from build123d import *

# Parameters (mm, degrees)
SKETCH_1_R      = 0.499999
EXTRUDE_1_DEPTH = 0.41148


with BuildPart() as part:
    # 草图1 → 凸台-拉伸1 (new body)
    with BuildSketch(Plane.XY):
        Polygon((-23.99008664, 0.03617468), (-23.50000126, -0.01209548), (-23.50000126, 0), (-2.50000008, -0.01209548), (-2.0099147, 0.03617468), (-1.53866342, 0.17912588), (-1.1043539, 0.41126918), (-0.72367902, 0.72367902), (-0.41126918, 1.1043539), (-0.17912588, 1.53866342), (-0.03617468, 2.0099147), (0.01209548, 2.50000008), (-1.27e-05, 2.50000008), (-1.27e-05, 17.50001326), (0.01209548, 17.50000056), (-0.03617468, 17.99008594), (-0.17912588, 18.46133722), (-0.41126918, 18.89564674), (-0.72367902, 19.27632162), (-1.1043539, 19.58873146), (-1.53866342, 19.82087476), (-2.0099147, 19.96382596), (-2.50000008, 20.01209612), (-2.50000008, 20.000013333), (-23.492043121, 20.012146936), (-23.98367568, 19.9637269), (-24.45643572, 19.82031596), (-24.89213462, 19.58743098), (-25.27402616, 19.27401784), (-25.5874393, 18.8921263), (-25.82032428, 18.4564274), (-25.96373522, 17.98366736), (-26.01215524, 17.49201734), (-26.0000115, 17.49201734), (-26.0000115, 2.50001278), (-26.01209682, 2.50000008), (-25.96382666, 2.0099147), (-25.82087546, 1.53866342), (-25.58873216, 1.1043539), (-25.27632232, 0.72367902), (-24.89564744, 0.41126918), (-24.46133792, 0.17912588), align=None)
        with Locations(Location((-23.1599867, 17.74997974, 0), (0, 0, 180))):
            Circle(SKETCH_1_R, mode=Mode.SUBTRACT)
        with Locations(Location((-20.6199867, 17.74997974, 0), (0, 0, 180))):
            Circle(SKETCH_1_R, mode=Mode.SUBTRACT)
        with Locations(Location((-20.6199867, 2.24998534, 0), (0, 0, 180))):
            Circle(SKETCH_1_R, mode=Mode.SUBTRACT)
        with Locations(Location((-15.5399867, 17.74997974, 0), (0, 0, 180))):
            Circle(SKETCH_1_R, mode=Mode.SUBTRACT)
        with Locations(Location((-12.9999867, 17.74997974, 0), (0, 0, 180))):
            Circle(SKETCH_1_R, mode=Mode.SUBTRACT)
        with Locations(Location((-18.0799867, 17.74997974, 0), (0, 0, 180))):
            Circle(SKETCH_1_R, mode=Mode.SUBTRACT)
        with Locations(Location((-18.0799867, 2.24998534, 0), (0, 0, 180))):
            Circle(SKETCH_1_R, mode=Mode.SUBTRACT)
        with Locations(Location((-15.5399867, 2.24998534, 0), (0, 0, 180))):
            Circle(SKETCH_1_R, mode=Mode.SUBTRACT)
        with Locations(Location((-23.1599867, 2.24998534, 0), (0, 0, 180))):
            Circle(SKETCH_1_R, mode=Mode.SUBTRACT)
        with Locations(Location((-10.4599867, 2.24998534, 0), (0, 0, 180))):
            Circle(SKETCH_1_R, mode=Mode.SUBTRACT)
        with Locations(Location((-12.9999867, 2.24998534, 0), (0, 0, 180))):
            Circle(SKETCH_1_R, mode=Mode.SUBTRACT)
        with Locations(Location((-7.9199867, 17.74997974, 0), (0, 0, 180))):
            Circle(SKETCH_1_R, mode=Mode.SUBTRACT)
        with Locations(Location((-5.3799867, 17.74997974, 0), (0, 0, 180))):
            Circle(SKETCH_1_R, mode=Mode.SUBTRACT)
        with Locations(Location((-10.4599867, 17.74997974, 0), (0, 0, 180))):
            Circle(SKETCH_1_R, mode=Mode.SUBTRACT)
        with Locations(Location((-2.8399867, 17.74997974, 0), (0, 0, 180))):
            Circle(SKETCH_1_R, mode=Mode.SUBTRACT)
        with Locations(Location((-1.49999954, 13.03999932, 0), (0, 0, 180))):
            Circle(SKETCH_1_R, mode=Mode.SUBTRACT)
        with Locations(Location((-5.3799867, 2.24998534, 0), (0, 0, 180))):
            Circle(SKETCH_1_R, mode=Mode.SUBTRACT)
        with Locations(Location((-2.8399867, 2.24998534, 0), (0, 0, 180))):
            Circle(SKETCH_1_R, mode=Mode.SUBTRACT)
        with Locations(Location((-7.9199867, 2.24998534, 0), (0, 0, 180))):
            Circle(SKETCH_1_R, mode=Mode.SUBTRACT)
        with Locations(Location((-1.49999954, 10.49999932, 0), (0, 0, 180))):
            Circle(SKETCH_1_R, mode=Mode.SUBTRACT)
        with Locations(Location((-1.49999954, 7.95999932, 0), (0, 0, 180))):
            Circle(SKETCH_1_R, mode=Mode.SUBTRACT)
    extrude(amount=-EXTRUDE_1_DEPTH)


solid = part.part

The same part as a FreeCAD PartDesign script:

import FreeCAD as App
import Part
import Sketcher
from FreeCAD import Vector


def add_polygon(sketch, points):
    """Adds a closed chain of lines whose ends are joined by coincident constraints."""
    first, n = sketch.GeometryCount, len(points)
    for a, b in zip(points, points[1:] + points[:1]):
        sketch.addGeometry(Part.LineSegment(App.Vector(*a, 0), App.Vector(*b, 0)), False)
    for i in range(n):
        sketch.addConstraint(Sketcher.Constraint("Coincident", first + i, 2, first + (i + 1) % n, 1))

doc = App.newDocument("Part")
body = doc.addObject("PartDesign::Body", "Body")

sketch1 = body.newObject("Sketcher::SketchObject", "Sketch")
sketch1.AttachmentSupport = (doc.getObject("XY_Plane"), [""])
sketch1.MapMode = "FlatFace"
add_polygon(sketch1, [(-23.990087, 0.036175), (-23.500001, -0.012095), (-23.500001, 0), (-2.5, -0.012095), (-2.009915, 0.036175), (-1.538663, 0.179126), (-1.104354, 0.411269), (-0.723679, 0.723679), (-0.411269, 1.104354), (-0.179126, 1.538663), (-0.036175, 2.009915), (0.012095, 2.5), (-0.000013, 2.5), (-0.000013, 17.500013), (0.012095, 17.500001), (-0.036175, 17.990086), (-0.179126, 18.461337), (-0.411269, 18.895647), (-0.723679, 19.276322), (-1.104354, 19.588731), (-1.538663, 19.820875), (-2.009915, 19.963826), (-2.5, 20.012096), (-2.5, 20.000013), (-23.492043, 20.012147), (-23.983676, 19.963727), (-24.456436, 19.820316), (-24.892135, 19.587431), (-25.274026, 19.274018), (-25.587439, 18.892126), (-25.820324, 18.456427), (-25.963735, 17.983667), (-26.012155, 17.492017), (-26.000011, 17.492017), (-26.000011, 2.500013), (-26.012097, 2.5), (-25.963827, 2.009915), (-25.820875, 1.538663), (-25.588732, 1.104354), (-25.276322, 0.723679), (-24.895647, 0.411269), (-24.461338, 0.179126)])
sketch1.addGeometry(Part.Circle(Vector(-23.159987, 2.249985, 0), Vector(0, 0, 1), 0.499999), False)
sketch1.addGeometry(Part.Circle(Vector(-20.619987, 2.249985, 0), Vector(0, 0, 1), 0.499999), False)
sketch1.addGeometry(Part.Circle(Vector(-18.079987, 2.249985, 0), Vector(0, 0, 1), 0.499999), False)
sketch1.addGeometry(Part.Circle(Vector(-15.539987, 2.249985, 0), Vector(0, 0, 1), 0.499999), False)
sketch1.addGeometry(Part.Circle(Vector(-12.999987, 2.249985, 0), Vector(0, 0, 1), 0.499999), False)
sketch1.addGeometry(Part.Circle(Vector(-10.459987, 2.249985, 0), Vector(0, 0, 1), 0.499999), False)
sketch1.addGeometry(Part.Circle(Vector(-7.919987, 2.249985, 0), Vector(0, 0, 1), 0.499999), False)
sketch1.addGeometry(Part.Circle(Vector(-5.379987, 2.249985, 0), Vector(0, 0, 1), 0.499999), False)
sketch1.addGeometry(Part.Circle(Vector(-2.839987, 2.249985, 0), Vector(0, 0, 1), 0.499999), False)
sketch1.addGeometry(Part.Circle(Vector(-1.5, 7.959999, 0), Vector(0, 0, 1), 0.499999), False)
sketch1.addGeometry(Part.Circle(Vector(-23.159987, 17.74998, 0), Vector(0, 0, 1), 0.499999), False)
sketch1.addGeometry(Part.Circle(Vector(-20.619987, 17.74998, 0), Vector(0, 0, 1), 0.499999), False)
sketch1.addGeometry(Part.Circle(Vector(-18.079987, 17.74998, 0), Vector(0, 0, 1), 0.499999), False)
sketch1.addGeometry(Part.Circle(Vector(-15.539987, 17.74998, 0), Vector(0, 0, 1), 0.499999), False)
sketch1.addGeometry(Part.Circle(Vector(-12.999987, 17.74998, 0), Vector(0, 0, 1), 0.499999), False)
sketch1.addGeometry(Part.Circle(Vector(-1.5, 10.499999, 0), Vector(0, 0, 1), 0.499999), False)
sketch1.addGeometry(Part.Circle(Vector(-1.5, 13.039999, 0), Vector(0, 0, 1), 0.499999), False)
sketch1.addGeometry(Part.Circle(Vector(-10.459987, 17.74998, 0), Vector(0, 0, 1), 0.499999), False)
sketch1.addGeometry(Part.Circle(Vector(-7.919987, 17.74998, 0), Vector(0, 0, 1), 0.499999), False)
sketch1.addGeometry(Part.Circle(Vector(-5.379987, 17.74998, 0), Vector(0, 0, 1), 0.499999), False)
sketch1.addGeometry(Part.Circle(Vector(-2.839987, 17.74998, 0), Vector(0, 0, 1), 0.499999), False)
sketch1.addConstraint([
    Sketcher.Constraint("Vertical", 1),
    Sketcher.Constraint("Horizontal", 11),
    Sketcher.Constraint("Vertical", 12),
    Sketcher.Constraint("Vertical", 22),
    Sketcher.Constraint("Horizontal", 32),
    Sketcher.Constraint("Vertical", 33),
    Sketcher.Constraint("PointOnObject", 1, 2, -1),
    Sketcher.Constraint("Diameter", 42, 0.999998),
    Sketcher.Constraint("Diameter", 43, 0.999998),
    Sketcher.Constraint("Diameter", 44, 0.999998),
    Sketcher.Constraint("Diameter", 45, 0.999998),
    Sketcher.Constraint("Diameter", 46, 0.999998),
    Sketcher.Constraint("Diameter", 47, 0.999998),
    Sketcher.Constraint("Diameter", 48, 0.999998),
    Sketcher.Constraint("Diameter", 49, 0.999998),
    Sketcher.Constraint("Diameter", 50, 0.999998),
    Sketcher.Constraint("Diameter", 51, 0.999998),
    Sketcher.Constraint("Diameter", 52, 0.999998),
    Sketcher.Constraint("Diameter", 53, 0.999998),
    Sketcher.Constraint("Diameter", 54, 0.999998),
    Sketcher.Constraint("Diameter", 55, 0.999998),
    Sketcher.Constraint("Diameter", 56, 0.999998),
    Sketcher.Constraint("Diameter", 57, 0.999998),
    Sketcher.Constraint("Diameter", 58, 0.999998),
    Sketcher.Constraint("Diameter", 59, 0.999998),
    Sketcher.Constraint("Diameter", 60, 0.999998),
    Sketcher.Constraint("Diameter", 61, 0.999998),
    Sketcher.Constraint("Diameter", 62, 0.999998),
    Sketcher.Constraint("DistanceX", 51, 3, -1, 1, 1.5),
    Sketcher.Constraint("DistanceX", 57, 3, -1, 1, 1.5),
    Sketcher.Constraint("DistanceY", -1, 1, 57, 3, 10.499999),
    Sketcher.Constraint("DistanceX", 58, 3, -1, 1, 1.5),
    Sketcher.Constraint("DistanceX", 0, 2, -1, 1, 23.500001),
    Sketcher.Constraint("DistanceX", 2, 2, -1, 1, 2.5),
    Sketcher.Constraint("DistanceY", -1, 1, 10, 2, 2.5),
    Sketcher.Constraint("DistanceY", -1, 1, 13, 2, 17.500001),
    Sketcher.Constraint("DistanceX", 21, 2, -1, 1, 2.5),
    Sketcher.Constraint("DistanceY", -1, 1, 34, 2, 2.5),
    Sketcher.Constraint("DistanceY", -1, 1, 51, 3, 7.959999),
    Sketcher.Constraint("DistanceY", -1, 1, 58, 3, 13.039999),
    Sketcher.Constraint("DistanceX", 11, 2, 11, 1, 0.012108),
    Sketcher.Constraint("Distance", 5, 0.492458),
    Sketcher.Constraint("Distance", 8, 0.492458),
    Sketcher.Constraint("Distance", 13, 0.012108),
    Sketcher.Constraint("Distance", 16, 0.492458),
    Sketcher.Constraint("Distance", 19, 0.492458),
    Sketcher.Constraint("Distance", 24, 0.494011),
    Sketcher.Constraint("Distance", 31, 0.494029),
    Sketcher.Constraint("Distance", 37, 0.492458),
    Sketcher.Constraint("Distance", 40, 0.492458),
    Sketcher.Constraint("DistanceX", 32, 1, 32, 2, 0.012144),
    Sketcher.Constraint("DistanceY", 1, 1, 1, 2, 0.012095),
    Sketcher.Constraint("DistanceY", 12, 1, 12, 2, 15.000013),
    Sketcher.Constraint("DistanceY", 22, 2, 22, 1, 0.012083),
    Sketcher.Constraint("DistanceY", 33, 2, 33, 1, 14.992005),
    Sketcher.Constraint("DistanceY", -1, 1, 52, 3, 17.74998),
    Sketcher.Constraint("DistanceY", -1, 1, 53, 3, 17.74998),
    Sketcher.Constraint("DistanceY", -1, 1, 54, 3, 17.74998),
    Sketcher.Constraint("DistanceY", -1, 1, 55, 3, 17.74998),
    Sketcher.Constraint("DistanceY", -1, 1, 56, 3, 17.74998),
    Sketcher.Constraint("DistanceY", -1, 1, 59, 3, 17.74998),
    Sketcher.Constraint("DistanceY", -1, 1, 60, 3, 17.74998),
    Sketcher.Constraint("DistanceY", -1, 1, 61, 3, 17.74998),
    Sketcher.Constraint("DistanceY", -1, 1, 62, 3, 17.74998),
    Sketcher.Constraint("DistanceY", -1, 1, 5, 2, 0.411269),
    Sketcher.Constraint("DistanceX", 6, 2, -1, 1, 0.723679),
    Sketcher.Constraint("DistanceY", -1, 1, 6, 2, 0.723679),
    Sketcher.Constraint("DistanceX", 7, 2, -1, 1, 0.411269),
    Sketcher.Constraint("DistanceX", 16, 2, -1, 1, 0.411269),
    Sketcher.Constraint("DistanceX", 17, 2, -1, 1, 0.723679),
    Sketcher.Constraint("DistanceY", -1, 1, 17, 2, 19.276322),
    Sketcher.Constraint("DistanceY", -1, 1, 18, 2, 19.588731),
    Sketcher.Constraint("DistanceY", -1, 1, 26, 2, 19.587431),
    Sketcher.Constraint("DistanceX", 28, 2, -1, 1, 25.587439),
    Sketcher.Constraint("DistanceX", 32, 2, -1, 1, 26.000011),
    Sketcher.Constraint("DistanceY", -1, 1, 38, 2, 0.723679),
    Sketcher.Constraint("DistanceY", -1, 1, 39, 2, 0.411269),
    Sketcher.Constraint("Distance", 0, 0.492457),
    Sketcher.Constraint("Distance", 3, 0.492457),
    Sketcher.Constraint("Distance", 4, 0.492456),
    Sketcher.Constraint("Distance", 6, 0.492456),
    Sketcher.Constraint("Distance", 7, 0.492456),
    Sketcher.Constraint("Distance", 9, 0.492456),
    Sketcher.Constraint("Distance", 10, 0.492457),
    Sketcher.Constraint("Distance", 14, 0.492457),
    Sketcher.Constraint("Distance", 15, 0.492456),
    Sketcher.Constraint("Distance", 17, 0.492456),
    Sketcher.Constraint("Distance", 18, 0.492456),
    Sketcher.Constraint("Distance", 20, 0.492456),
    Sketcher.Constraint("Distance", 21, 0.492457),
    Sketcher.Constraint("Distance", 23, 20.992047),
    Sketcher.Constraint("Distance", 25, 0.494033),
    Sketcher.Constraint("Distance", 26, 0.494033),
    Sketcher.Constraint("Distance", 27, 0.494033),
    Sketcher.Constraint("Distance", 28, 0.494033),
    Sketcher.Constraint("Distance", 29, 0.494033),
    Sketcher.Constraint("Distance", 30, 0.494033),
    Sketcher.Constraint("Distance", 34, 0.012085),
    Sketcher.Constraint("Distance", 35, 0.492457),
    Sketcher.Constraint("Distance", 36, 0.492456),
    Sketcher.Constraint("Distance", 38, 0.492456),
    Sketcher.Constraint("Distance", 39, 0.492456),
    Sketcher.Constraint("Distance", 41, 0.492456),
    Sketcher.Constraint("DistanceX", 42, 3, -1, 1, 23.159987),
    Sketcher.Constraint("DistanceY", -1, 1, 42, 3, 2.249985),
    Sketcher.Constraint("DistanceX", 43, 3, -1, 1, 20.619987),
    Sketcher.Constraint("DistanceY", -1, 1, 43, 3, 2.249985),
    Sketcher.Constraint("DistanceX", 44, 3, -1, 1, 18.079987),
    Sketcher.Constraint("DistanceY", -1, 1, 44, 3, 2.249985),
    Sketcher.Constraint("DistanceX", 45, 3, -1, 1, 15.539987),
    Sketcher.Constraint("DistanceY", -1, 1, 45, 3, 2.249985),
    Sketcher.Constraint("DistanceX", 46, 3, -1, 1, 12.999987),
    Sketcher.Constraint("DistanceY", -1, 1, 46, 3, 2.249985),
    Sketcher.Constraint("DistanceX", 47, 3, -1, 1, 10.459987),
    Sketcher.Constraint("DistanceY", -1, 1, 47, 3, 2.249985),
    Sketcher.Constraint("DistanceX", 48, 3, -1, 1, 7.919987),
    Sketcher.Constraint("DistanceY", -1, 1, 48, 3, 2.249985),
    Sketcher.Constraint("DistanceX", 49, 3, -1, 1, 5.379987),
    Sketcher.Constraint("DistanceY", -1, 1, 49, 3, 2.249985),
    Sketcher.Constraint("DistanceX", 50, 3, -1, 1, 2.839987),
    Sketcher.Constraint("DistanceY", -1, 1, 50, 3, 2.249985),
    Sketcher.Constraint("DistanceX", 52, 3, -1, 1, 23.159987),
    Sketcher.Constraint("DistanceX", 53, 3, -1, 1, 20.619987),
    Sketcher.Constraint("DistanceX", 54, 3, -1, 1, 18.079987),
    Sketcher.Constraint("DistanceX", 55, 3, -1, 1, 15.539987),
    Sketcher.Constraint("DistanceX", 56, 3, -1, 1, 12.999987),
    Sketcher.Constraint("DistanceX", 59, 3, -1, 1, 10.459987),
    Sketcher.Constraint("DistanceX", 60, 3, -1, 1, 7.919987),
    Sketcher.Constraint("DistanceX", 61, 3, -1, 1, 5.379987),
    Sketcher.Constraint("DistanceX", 62, 3, -1, 1, 2.839987),
    Sketcher.Constraint("DistanceY", 2, 2, -1, 1, 0.012095),
    Sketcher.Constraint("DistanceX", 3, 2, -1, 1, 2.009915),
    Sketcher.Constraint("DistanceX", 8, 2, -1, 1, 0.179126),
    Sketcher.Constraint("DistanceX", 9, 2, -1, 1, 0.036175),
    Sketcher.Constraint("DistanceX", 14, 2, -1, 1, 0.036175),
    Sketcher.Constraint("DistanceX", 19, 2, -1, 1, 1.538663),
    Sketcher.Constraint("DistanceX", 20, 2, -1, 1, 2.009915),
    Sketcher.Constraint("DistanceY", -1, 1, 23, 2, 20.012147),
    Sketcher.Constraint("DistanceX", 24, 2, -1, 1, 23.983676),
    Sketcher.Constraint("DistanceX", 25, 2, -1, 1, 24.456436),
    Sketcher.Constraint("DistanceX", 27, 2, -1, 1, 25.274026),
    Sketcher.Constraint("DistanceX", 29, 2, -1, 1, 25.820324),
    Sketcher.Constraint("DistanceX", 30, 2, -1, 1, 25.963735),
    Sketcher.Constraint("DistanceX", 35, 2, -1, 1, 25.963827),
    Sketcher.Constraint("DistanceX", 36, 2, -1, 1, 25.820875),
    Sketcher.Constraint("DistanceX", 37, 2, -1, 1, 25.588732),
    Sketcher.Constraint("DistanceX", 40, 2, -1, 1, 24.461338),
])
pad1 = body.newObject("PartDesign::Pad", "Pad")
pad1.Profile = sketch1
pad1.Length = 0.41148
pad1.Reversed = True

doc.recompute()
